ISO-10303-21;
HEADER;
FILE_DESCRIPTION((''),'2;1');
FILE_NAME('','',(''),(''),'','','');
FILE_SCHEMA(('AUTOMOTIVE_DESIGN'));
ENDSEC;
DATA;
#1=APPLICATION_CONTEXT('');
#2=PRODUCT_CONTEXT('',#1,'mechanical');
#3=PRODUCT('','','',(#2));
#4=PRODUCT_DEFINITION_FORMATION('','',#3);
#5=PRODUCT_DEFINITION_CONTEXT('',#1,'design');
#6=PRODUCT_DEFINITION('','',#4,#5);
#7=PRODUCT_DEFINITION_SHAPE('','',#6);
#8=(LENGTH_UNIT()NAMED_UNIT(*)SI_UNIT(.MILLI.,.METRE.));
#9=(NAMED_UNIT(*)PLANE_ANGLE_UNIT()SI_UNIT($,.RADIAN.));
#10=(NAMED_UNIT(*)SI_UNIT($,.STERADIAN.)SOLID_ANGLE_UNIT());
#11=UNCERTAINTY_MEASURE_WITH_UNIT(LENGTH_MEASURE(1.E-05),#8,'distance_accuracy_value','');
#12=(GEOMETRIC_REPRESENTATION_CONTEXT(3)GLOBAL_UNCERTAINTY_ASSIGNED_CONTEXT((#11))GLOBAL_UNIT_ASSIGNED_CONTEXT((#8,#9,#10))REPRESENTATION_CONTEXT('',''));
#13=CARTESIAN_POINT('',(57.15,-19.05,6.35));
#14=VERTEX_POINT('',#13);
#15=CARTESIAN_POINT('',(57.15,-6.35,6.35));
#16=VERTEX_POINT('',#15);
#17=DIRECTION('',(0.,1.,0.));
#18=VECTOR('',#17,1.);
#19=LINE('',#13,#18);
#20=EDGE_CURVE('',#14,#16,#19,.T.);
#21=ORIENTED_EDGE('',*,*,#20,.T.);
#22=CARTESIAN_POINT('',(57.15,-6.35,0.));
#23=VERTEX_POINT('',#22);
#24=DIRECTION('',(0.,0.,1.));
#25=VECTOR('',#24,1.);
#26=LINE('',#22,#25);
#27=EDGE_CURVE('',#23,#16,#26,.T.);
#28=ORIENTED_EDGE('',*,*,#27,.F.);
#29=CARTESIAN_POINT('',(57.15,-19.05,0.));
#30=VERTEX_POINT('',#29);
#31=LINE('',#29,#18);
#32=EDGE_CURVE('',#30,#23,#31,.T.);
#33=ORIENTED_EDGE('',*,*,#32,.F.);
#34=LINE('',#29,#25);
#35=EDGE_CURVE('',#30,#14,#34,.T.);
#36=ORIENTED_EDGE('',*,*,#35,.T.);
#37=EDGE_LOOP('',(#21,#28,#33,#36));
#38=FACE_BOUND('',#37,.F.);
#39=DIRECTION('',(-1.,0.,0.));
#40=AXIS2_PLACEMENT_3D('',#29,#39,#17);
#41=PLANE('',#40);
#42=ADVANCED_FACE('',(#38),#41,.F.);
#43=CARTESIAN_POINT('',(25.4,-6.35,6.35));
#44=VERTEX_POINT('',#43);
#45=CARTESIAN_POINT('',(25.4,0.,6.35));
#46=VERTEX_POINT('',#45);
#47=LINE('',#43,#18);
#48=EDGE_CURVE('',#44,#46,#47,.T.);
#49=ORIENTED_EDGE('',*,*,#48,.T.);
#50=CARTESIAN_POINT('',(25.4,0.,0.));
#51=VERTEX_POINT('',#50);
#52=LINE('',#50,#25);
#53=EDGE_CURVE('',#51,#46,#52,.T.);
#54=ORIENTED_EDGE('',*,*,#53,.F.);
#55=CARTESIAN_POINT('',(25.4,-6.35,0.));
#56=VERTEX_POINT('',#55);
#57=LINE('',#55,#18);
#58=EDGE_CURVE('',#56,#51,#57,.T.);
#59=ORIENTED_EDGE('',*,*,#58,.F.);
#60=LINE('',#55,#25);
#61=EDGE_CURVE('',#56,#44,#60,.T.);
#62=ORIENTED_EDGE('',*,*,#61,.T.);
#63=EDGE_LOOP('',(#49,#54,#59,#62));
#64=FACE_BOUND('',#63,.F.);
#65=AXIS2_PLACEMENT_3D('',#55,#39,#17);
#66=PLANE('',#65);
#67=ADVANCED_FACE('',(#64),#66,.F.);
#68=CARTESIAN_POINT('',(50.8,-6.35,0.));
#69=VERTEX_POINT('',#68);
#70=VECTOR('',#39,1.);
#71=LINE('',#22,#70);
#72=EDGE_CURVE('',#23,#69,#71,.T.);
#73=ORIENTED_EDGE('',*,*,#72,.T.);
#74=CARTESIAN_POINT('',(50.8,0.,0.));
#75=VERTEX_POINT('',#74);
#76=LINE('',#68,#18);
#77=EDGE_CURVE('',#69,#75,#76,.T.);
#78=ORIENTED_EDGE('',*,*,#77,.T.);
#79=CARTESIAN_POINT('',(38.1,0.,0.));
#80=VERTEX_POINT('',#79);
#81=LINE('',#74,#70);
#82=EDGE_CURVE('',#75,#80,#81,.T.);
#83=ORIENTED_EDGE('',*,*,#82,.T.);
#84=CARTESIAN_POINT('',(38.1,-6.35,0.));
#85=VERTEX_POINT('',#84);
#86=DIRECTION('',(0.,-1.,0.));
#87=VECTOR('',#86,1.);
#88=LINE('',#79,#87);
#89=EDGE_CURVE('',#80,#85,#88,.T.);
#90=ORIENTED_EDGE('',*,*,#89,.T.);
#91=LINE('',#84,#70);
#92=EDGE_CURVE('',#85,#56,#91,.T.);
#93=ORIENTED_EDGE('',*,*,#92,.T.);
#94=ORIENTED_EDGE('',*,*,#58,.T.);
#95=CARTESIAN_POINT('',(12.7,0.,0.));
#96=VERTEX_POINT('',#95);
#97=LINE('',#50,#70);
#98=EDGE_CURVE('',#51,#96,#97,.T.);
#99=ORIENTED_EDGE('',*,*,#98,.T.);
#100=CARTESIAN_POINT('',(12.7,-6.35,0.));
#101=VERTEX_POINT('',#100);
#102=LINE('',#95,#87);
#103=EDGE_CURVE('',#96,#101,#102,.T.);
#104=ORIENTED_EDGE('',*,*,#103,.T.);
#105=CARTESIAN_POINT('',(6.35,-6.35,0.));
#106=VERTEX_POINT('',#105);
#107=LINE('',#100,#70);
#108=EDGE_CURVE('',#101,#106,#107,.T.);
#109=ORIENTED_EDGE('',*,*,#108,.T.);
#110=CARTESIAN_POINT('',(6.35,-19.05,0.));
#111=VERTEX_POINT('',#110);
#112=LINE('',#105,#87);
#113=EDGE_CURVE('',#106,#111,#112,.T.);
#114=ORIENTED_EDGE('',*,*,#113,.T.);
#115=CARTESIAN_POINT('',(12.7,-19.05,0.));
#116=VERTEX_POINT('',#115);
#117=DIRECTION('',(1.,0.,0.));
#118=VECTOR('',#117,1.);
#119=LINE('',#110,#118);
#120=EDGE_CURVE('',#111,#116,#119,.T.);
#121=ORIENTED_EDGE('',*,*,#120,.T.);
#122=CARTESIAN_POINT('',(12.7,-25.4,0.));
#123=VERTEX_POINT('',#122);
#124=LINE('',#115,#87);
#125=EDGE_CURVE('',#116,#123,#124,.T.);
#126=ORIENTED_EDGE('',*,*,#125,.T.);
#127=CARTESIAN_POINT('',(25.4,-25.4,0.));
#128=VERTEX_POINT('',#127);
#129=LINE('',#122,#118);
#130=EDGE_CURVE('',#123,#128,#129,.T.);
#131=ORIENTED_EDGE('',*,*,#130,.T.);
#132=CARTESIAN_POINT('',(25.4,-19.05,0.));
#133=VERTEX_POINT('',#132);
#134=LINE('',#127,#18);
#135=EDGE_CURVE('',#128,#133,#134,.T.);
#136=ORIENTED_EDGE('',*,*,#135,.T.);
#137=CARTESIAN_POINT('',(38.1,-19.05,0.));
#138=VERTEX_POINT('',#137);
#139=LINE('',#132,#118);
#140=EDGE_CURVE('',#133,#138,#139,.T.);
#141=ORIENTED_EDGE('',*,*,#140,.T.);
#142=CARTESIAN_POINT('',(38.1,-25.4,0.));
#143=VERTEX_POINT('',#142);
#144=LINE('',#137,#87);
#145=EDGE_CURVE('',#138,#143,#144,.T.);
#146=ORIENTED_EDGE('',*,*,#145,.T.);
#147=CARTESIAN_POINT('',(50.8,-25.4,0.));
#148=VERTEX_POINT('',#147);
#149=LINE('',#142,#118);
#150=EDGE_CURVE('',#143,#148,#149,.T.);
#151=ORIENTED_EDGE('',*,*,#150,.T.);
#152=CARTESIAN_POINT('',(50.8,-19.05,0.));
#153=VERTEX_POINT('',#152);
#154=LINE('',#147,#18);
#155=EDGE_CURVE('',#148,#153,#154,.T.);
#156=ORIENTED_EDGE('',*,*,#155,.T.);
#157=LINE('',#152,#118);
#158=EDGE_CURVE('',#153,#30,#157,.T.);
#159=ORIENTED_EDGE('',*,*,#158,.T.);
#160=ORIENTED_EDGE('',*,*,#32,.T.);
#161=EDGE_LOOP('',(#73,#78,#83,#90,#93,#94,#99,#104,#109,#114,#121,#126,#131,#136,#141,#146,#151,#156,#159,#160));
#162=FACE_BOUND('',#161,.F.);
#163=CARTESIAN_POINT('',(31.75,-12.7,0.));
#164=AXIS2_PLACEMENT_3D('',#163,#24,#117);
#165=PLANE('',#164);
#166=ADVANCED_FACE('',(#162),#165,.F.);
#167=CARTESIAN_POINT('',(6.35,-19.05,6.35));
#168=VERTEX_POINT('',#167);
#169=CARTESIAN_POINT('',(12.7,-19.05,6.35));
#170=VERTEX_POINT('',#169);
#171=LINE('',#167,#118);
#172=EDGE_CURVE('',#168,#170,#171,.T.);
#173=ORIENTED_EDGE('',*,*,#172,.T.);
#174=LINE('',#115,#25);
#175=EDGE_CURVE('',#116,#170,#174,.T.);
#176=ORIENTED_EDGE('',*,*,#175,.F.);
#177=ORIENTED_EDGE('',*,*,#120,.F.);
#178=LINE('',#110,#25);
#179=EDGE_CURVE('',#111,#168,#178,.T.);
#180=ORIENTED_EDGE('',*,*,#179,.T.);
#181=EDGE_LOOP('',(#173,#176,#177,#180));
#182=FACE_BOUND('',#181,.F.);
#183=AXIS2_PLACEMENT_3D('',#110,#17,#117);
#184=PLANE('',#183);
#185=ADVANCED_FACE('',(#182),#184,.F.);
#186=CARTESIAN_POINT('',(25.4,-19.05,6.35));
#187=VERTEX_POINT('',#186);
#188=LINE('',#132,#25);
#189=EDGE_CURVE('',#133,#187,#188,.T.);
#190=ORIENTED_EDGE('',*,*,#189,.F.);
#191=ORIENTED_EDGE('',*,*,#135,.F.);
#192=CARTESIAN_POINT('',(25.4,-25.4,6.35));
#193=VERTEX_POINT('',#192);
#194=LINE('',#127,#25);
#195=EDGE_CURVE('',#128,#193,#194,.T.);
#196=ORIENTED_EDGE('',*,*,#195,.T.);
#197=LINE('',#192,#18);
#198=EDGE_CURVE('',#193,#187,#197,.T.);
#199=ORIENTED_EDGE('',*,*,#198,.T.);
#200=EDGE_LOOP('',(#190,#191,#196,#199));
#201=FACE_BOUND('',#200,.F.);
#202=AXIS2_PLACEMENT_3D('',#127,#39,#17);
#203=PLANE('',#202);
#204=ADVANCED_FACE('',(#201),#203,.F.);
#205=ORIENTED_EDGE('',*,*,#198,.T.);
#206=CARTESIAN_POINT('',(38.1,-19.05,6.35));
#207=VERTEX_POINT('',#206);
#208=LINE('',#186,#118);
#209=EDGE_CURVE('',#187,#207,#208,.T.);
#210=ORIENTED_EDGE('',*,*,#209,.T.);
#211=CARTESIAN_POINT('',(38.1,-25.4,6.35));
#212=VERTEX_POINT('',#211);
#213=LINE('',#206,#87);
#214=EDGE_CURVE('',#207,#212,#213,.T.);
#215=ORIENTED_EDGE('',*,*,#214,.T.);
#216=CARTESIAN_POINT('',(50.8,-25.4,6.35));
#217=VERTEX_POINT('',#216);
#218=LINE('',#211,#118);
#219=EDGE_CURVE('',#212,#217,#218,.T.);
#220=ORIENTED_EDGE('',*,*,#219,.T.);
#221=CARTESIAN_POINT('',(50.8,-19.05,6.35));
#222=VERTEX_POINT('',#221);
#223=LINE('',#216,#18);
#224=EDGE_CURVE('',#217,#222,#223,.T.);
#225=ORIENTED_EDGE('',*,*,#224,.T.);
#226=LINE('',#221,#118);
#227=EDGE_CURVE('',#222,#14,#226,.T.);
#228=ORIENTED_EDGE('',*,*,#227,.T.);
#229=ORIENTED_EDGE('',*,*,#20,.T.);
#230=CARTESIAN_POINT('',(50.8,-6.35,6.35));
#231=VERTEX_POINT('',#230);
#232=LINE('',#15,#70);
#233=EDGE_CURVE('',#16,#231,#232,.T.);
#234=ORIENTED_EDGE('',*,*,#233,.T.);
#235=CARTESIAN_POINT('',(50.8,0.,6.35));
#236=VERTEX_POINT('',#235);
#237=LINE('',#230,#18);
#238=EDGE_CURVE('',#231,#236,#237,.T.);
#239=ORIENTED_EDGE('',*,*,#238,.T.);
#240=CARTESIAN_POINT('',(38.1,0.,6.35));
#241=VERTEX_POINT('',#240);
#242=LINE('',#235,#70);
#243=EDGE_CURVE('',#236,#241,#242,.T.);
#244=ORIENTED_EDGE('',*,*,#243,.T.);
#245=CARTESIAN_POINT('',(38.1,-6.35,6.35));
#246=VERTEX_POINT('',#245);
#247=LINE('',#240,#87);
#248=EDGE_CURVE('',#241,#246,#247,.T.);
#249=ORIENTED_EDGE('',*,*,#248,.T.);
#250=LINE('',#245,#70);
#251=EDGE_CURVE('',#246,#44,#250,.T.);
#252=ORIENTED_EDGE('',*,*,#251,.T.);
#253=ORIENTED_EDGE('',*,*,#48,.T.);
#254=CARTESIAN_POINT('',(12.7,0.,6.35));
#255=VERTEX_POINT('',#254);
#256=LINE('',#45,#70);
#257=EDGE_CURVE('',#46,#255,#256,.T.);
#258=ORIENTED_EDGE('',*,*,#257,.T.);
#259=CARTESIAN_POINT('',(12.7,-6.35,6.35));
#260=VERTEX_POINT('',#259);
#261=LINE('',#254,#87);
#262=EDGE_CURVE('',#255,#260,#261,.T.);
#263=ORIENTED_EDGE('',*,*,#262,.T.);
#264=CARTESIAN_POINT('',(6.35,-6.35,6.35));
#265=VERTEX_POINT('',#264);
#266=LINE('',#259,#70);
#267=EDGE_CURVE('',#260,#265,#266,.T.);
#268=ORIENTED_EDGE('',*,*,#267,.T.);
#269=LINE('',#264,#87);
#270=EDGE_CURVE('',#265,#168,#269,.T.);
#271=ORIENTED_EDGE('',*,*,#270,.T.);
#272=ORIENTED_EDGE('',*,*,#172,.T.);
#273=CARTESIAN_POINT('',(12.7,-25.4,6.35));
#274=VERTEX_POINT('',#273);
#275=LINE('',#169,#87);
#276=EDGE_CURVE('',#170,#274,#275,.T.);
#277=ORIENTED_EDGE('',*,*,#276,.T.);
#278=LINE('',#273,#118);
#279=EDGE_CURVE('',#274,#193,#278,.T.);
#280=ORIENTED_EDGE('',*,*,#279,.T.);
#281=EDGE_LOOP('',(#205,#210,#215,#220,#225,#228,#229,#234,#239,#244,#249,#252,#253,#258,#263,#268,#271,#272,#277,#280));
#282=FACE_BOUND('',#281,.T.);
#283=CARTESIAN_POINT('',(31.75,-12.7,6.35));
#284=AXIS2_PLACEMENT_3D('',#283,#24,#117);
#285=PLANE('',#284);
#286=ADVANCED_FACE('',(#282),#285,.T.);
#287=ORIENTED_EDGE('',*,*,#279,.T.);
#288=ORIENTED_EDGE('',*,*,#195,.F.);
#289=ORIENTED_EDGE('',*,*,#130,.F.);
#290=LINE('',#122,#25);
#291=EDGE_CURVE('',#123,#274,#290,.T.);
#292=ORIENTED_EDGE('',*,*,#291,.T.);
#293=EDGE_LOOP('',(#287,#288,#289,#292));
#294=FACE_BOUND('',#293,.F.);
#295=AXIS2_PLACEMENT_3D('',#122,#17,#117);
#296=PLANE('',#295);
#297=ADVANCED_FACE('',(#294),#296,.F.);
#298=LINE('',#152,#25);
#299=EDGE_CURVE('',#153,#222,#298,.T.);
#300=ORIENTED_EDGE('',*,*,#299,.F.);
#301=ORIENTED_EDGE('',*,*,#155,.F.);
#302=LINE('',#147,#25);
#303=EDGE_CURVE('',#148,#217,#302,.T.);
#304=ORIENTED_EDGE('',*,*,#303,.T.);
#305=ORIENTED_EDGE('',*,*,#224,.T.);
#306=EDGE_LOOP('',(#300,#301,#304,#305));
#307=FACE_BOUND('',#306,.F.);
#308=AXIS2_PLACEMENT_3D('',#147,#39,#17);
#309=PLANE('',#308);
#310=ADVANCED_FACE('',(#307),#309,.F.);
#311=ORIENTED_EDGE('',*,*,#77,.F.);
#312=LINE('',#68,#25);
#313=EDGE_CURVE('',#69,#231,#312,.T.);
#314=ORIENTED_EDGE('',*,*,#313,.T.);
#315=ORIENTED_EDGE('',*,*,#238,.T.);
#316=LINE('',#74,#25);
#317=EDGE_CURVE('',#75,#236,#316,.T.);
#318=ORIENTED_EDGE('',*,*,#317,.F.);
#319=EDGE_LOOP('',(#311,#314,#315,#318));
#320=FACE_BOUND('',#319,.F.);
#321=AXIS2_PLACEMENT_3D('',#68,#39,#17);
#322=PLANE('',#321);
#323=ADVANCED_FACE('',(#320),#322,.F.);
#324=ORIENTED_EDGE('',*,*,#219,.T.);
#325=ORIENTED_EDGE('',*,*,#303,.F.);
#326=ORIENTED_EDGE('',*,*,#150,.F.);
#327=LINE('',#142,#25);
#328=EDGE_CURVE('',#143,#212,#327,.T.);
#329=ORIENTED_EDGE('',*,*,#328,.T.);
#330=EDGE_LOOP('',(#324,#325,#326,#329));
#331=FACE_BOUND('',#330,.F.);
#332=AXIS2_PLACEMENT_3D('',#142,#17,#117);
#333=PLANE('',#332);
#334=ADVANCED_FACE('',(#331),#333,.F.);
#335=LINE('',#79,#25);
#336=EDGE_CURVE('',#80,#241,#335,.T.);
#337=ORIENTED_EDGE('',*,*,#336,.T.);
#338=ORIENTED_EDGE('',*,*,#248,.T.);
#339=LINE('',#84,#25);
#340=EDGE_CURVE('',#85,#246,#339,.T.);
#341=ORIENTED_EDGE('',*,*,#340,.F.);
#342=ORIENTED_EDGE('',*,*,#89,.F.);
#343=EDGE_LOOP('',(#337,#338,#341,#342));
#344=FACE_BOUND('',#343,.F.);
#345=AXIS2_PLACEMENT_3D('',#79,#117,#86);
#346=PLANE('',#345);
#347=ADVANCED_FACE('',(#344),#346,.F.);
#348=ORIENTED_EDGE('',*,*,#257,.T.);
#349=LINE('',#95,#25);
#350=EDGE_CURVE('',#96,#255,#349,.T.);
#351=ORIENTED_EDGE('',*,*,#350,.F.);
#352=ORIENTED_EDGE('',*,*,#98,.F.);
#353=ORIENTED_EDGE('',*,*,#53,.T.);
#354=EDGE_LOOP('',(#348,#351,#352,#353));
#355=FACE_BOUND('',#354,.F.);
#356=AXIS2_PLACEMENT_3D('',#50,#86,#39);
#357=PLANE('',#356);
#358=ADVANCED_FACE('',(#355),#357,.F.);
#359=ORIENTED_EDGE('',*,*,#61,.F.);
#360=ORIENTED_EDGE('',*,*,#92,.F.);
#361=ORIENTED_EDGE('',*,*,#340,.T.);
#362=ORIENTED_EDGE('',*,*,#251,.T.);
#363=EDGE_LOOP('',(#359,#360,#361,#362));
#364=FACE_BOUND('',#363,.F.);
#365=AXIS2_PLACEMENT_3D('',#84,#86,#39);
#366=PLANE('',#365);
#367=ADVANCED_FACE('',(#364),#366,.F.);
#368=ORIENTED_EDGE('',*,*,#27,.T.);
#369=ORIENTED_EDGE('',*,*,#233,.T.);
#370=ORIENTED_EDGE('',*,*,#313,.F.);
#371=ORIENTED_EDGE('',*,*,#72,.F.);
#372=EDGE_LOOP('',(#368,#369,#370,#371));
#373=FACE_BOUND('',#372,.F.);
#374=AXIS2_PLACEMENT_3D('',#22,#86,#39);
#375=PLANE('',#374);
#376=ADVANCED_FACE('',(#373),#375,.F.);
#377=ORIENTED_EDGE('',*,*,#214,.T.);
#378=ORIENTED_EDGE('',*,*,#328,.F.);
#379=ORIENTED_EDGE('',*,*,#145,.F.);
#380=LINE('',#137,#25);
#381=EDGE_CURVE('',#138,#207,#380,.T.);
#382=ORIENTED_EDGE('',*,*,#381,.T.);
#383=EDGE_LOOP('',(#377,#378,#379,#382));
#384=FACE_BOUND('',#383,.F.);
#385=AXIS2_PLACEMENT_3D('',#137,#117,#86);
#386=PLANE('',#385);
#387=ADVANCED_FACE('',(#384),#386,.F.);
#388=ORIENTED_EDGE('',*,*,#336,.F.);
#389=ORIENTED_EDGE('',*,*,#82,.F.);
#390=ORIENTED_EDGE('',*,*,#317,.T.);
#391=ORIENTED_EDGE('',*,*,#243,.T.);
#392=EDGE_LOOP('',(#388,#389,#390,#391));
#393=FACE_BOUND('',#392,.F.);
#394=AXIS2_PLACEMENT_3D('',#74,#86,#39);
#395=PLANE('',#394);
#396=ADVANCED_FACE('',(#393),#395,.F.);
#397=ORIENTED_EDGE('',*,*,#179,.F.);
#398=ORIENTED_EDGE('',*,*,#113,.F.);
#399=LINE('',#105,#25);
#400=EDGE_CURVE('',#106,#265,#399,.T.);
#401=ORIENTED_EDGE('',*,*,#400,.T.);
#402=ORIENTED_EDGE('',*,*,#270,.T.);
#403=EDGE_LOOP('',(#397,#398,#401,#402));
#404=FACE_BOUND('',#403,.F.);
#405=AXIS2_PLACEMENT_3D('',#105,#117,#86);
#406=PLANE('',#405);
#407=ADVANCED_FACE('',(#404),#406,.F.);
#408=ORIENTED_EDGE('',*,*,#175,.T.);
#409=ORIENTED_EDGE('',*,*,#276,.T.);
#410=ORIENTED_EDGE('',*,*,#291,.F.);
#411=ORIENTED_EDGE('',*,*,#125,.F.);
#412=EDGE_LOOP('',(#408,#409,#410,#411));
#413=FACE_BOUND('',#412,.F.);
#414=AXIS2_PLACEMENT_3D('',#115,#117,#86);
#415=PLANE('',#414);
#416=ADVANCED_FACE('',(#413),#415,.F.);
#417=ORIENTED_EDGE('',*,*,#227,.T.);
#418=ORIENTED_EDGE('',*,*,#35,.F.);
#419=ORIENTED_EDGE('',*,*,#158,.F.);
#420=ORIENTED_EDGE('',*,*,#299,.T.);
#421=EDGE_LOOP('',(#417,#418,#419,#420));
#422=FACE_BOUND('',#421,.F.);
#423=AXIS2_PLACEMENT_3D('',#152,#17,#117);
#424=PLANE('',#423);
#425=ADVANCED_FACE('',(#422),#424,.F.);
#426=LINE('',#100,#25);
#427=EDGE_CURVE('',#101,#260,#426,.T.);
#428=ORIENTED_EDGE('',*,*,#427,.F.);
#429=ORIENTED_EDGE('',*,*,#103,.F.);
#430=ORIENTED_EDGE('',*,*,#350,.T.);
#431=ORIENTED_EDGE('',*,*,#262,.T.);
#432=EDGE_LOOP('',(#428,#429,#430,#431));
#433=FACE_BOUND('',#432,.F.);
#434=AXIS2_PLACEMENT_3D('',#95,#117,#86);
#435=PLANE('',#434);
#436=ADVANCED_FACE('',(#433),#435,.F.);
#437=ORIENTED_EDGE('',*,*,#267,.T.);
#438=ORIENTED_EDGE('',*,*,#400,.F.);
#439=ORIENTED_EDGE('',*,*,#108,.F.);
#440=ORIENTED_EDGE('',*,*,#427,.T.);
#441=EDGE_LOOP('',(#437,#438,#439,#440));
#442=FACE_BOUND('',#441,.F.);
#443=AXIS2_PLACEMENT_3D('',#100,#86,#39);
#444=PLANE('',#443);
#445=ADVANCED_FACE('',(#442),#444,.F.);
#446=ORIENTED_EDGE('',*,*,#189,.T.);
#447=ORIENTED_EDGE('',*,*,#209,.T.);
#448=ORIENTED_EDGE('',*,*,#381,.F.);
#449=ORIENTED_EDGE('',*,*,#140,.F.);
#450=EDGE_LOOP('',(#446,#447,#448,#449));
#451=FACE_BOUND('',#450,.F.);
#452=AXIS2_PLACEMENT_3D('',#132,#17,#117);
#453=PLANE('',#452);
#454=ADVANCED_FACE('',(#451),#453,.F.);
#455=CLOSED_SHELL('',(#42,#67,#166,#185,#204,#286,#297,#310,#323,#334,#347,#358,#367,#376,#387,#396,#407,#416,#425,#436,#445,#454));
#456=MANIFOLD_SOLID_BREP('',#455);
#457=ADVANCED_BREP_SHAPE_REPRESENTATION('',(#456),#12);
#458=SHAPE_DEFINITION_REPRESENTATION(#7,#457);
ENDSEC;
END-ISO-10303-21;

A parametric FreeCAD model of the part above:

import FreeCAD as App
import Part
import Sketcher
Q = App.Units.Quantity


def add_polygon(sketch, points):
    """Adds a closed chain of lines whose ends are joined by coincident constraints."""
    first, n = sketch.GeometryCount, len(points)
    for a, b in zip(points, points[1:] + points[:1]):
        sketch.addGeometry(Part.LineSegment(App.Vector(*a, 0), App.Vector(*b, 0)), False)
    for i in range(n):
        sketch.addConstraint(Sketcher.Constraint("Coincident", first + i, 2, first + (i + 1) % n, 1))

doc = App.newDocument("Part")
body = doc.addObject("PartDesign::Body", "Body")

sketch1 = body.newObject("Sketcher::SketchObject", "Sketch")
sketch1.AttachmentSupport = (doc.getObject("XY_Plane"), [""])
sketch1.MapMode = "FlatFace"
add_polygon(sketch1, [(13, -19), (13, -25), (25, -25), (25, -19), (38, -19), (38, -25), (51, -25), (51, -19), (57, -19), (57, -6), (51, -6), (51, 0), (38, 0), (38, -6), (25, -6), (25, 0), (13, 0), (13, -6), (6, -6), (6, -19)])
sketch1.addConstraint(Sketcher.Constraint("Vertical", 0))
sketch1.addConstraint(Sketcher.Constraint("Horizontal", 1))
sketch1.addConstraint(Sketcher.Constraint("Vertical", 2))
sketch1.addConstraint(Sketcher.Constraint("Horizontal", 3))
sketch1.addConstraint(Sketcher.Constraint("Vertical", 4))
sketch1.addConstraint(Sketcher.Constraint("Horizontal", 5))
sketch1.addConstraint(Sketcher.Constraint("Vertical", 6))
sketch1.addConstraint(Sketcher.Constraint("Horizontal", 7))
sketch1.addConstraint(Sketcher.Constraint("Vertical", 8))
sketch1.addConstraint(Sketcher.Constraint("Horizontal", 9))
sketch1.addConstraint(Sketcher.Constraint("Vertical", 10))
sketch1.addConstraint(Sketcher.Constraint("Horizontal", 11))
sketch1.addConstraint(Sketcher.Constraint("Vertical", 12))
sketch1.addConstraint(Sketcher.Constraint("Horizontal", 13))
sketch1.addConstraint(Sketcher.Constraint("Vertical", 14))
sketch1.addConstraint(Sketcher.Constraint("Horizontal", 15))
sketch1.addConstraint(Sketcher.Constraint("Vertical", 16))
sketch1.addConstraint(Sketcher.Constraint("Horizontal", 17))
sketch1.addConstraint(Sketcher.Constraint("Vertical", 18))
sketch1.addConstraint(Sketcher.Constraint("Horizontal", 19))
sketch1.addConstraint(Sketcher.Constraint("PointOnObject", 10, 2, -1))
sketch1.addConstraint(Sketcher.Constraint("PointOnObject", 14, 2, -1))
sketch1.addConstraint(Sketcher.Constraint("Horizontal", 1, 2, 4, 2))
sketch1.addConstraint(Sketcher.Constraint("Horizontal", 3, 2, 6, 2))
sketch1.addConstraint(Sketcher.Constraint("Horizontal", 9, 2, 12, 2))
sketch1.addConstraint(Sketcher.Constraint("Horizontal", 13, 2, 16, 2))
sketch1.addConstraint(Sketcher.Constraint("Horizontal", 7, 2, 18, 2))
sketch1.addConstraint(Sketcher.Constraint("Vertical", 6, 2, 9, 2))
sketch1.addConstraint(Sketcher.Constraint("Vertical", 4, 2, 11, 2))
sketch1.addConstraint(Sketcher.Constraint("Vertical", 2, 2, 13, 2))
sketch1.addConstraint(Sketcher.Constraint("Vertical", 0, 2, 15, 2))
sketch1.addConstraint(Sketcher.Constraint("Equal", 1, 3))
sketch1.addConstraint(Sketcher.Constraint("Equal", 3, 5))
sketch1.addConstraint(Sketcher.Constraint("Equal", 9, 17))
sketch1.addConstraint(Sketcher.Constraint("Equal", 19, 0))
sketch1.addConstraint(Sketcher.Constraint("Equal", 15, 8))
sketch1.addConstraint(Sketcher.Constraint("Equal", 6, 10))
sketch1.addConstraint(Sketcher.Constraint("DistanceX", 1, 1, 1, 2, Q("0.5 in")))
sketch1.addConstraint(Sketcher.Constraint("DistanceY", 0, 2, -1, 1, Q("1 in")))
sketch1.addConstraint(Sketcher.Constraint("DistanceX", -1, 1, 1, 2, Q("1 in")))
pad1 = body.newObject("PartDesign::Pad", "Pad")
pad1.Profile = sketch1
pad1.Length = Q("0.25 in")

doc.recompute()
